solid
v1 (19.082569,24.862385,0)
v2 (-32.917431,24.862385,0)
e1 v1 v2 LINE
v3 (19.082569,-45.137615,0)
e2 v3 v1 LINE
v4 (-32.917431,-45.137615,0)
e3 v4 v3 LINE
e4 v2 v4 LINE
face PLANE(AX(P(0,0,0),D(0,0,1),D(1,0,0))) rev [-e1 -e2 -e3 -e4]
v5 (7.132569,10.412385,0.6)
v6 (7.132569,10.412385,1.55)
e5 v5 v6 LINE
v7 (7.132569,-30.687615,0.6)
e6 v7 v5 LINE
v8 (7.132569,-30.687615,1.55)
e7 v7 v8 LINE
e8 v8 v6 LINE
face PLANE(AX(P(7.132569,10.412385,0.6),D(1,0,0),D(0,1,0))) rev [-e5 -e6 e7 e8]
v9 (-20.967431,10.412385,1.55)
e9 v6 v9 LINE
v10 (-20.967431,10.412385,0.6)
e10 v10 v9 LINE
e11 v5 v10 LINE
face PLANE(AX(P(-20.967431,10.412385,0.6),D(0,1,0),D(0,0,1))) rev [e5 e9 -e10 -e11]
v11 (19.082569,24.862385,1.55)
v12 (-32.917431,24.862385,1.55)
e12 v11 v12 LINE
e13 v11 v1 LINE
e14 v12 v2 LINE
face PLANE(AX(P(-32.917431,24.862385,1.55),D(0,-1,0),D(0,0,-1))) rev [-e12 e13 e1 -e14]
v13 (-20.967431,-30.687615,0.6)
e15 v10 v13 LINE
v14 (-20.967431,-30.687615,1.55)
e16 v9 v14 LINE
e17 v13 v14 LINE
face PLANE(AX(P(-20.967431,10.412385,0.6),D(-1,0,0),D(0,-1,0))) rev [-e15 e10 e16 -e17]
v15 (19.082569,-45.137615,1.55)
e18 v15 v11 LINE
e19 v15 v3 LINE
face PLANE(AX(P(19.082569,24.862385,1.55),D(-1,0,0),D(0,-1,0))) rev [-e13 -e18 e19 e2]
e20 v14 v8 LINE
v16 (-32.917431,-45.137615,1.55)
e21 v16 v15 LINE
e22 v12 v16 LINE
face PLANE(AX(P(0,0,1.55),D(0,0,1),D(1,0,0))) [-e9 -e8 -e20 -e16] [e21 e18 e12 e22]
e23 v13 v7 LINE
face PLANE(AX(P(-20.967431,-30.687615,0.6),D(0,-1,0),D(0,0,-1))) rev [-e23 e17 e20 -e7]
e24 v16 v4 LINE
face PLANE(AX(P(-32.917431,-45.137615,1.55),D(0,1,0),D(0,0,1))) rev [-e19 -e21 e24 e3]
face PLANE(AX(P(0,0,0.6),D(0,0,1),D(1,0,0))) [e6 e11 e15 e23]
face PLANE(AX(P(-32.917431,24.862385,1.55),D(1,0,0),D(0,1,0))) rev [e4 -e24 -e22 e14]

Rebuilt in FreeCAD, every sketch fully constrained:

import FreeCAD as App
import Part
import Sketcher

doc = App.newDocument("Part")
body = doc.addObject("PartDesign::Body", "Body")

# Sketch on XY plane
sketch1 = doc.addObject("Sketcher::SketchObject", "Sketch")
body.addObject(sketch1)
sketch1.AttachmentSupport = (doc.XY_Plane, [""])
sketch1.MapMode = "FlatFace"
sketch1.addGeometry([
    Part.LineSegment(App.Vector(-33, 25, 0), App.Vector(-33, -45, 0)),
    Part.LineSegment(App.Vector(-33, -45, 0), App.Vector(19, -45, 0)),
    Part.LineSegment(App.Vector(19, -45, 0), App.Vector(19, 25, 0)),
    Part.LineSegment(App.Vector(19, 25, 0), App.Vector(-33, 25, 0)),
], False)
sketch1.addConstraint([
    Sketcher.Constraint("Coincident", 0, 2, 1, 1),
    Sketcher.Constraint("Coincident", 1, 2, 2, 1),
    Sketcher.Constraint("Coincident", 2, 2, 3, 1),
    Sketcher.Constraint("Coincident", 3, 2, 0, 1),
    Sketcher.Constraint("Vertical", 0),
    Sketcher.Constraint("Horizontal", 1),
    Sketcher.Constraint("Vertical", 2),
    Sketcher.Constraint("Horizontal", 3),
    Sketcher.Constraint("DistanceX", 1, 1, 1, 2, 52.0),
    Sketcher.Constraint("DistanceY", 0, 2, 0, 1, 70.0),
    Sketcher.Constraint("DistanceX", 0, 2, -1, 1, 32.917431),
    Sketcher.Constraint("DistanceY", 0, 2, -1, 1, 45.137615),
])
pad1 = doc.addObject("PartDesign::Pad", "Pad")
body.addObject(pad1)
pad1.Profile = sketch1
pad1.Length = 1.55

# Sketch on XY plane
sketch2 = doc.addObject("Sketcher::SketchObject", "Sketch001")
body.addObject(sketch2)
sketch2.AttachmentSupport = (doc.XY_Plane, [""])
sketch2.MapMode = "FlatFace"
sketch2.AttachmentOffset = App.Placement(App.Vector(0, 0, 1.55), App.Rotation())
sketch2.addGeometry([
    Part.LineSegment(App.Vector(-21, 10, 0), App.Vector(-21, -31, 0)),
    Part.LineSegment(App.Vector(-21, -31, 0), App.Vector(7, -31, 0)),
    Part.LineSegment(App.Vector(7, -31, 0), App.Vector(7, 10, 0)),
    Part.LineSegment(App.Vector(7, 10, 0), App.Vector(-21, 10, 0)),
], False)
sketch2.addConstraint([
    Sketcher.Constraint("Coincident", 0, 2, 1, 1),
    Sketcher.Constraint("Coincident", 1, 2, 2, 1),
    Sketcher.Constraint("Coincident", 2, 2, 3, 1),
    Sketcher.Constraint("Coincident", 3, 2, 0, 1),
    Sketcher.Constraint("Vertical", 0),
    Sketcher.Constraint("Horizontal", 1),
    Sketcher.Constraint("Vertical", 2),
    Sketcher.Constraint("Horizontal", 3),
    Sketcher.Constraint("DistanceX", 1, 1, 1, 2, 28.1),
    Sketcher.Constraint("DistanceY", 0, 2, 0, 1, 41.1),
    Sketcher.Constraint("DistanceX", 0, 2, -1, 1, 20.967431),
    Sketcher.Constraint("DistanceY", 0, 2, -1, 1, 30.687615),
])
pocket1 = doc.addObject("PartDesign::Pocket", "Pocket")
body.addObject(pocket1)
pocket1.Profile = sketch2
pocket1.Length = 0.95

doc.recompute()
